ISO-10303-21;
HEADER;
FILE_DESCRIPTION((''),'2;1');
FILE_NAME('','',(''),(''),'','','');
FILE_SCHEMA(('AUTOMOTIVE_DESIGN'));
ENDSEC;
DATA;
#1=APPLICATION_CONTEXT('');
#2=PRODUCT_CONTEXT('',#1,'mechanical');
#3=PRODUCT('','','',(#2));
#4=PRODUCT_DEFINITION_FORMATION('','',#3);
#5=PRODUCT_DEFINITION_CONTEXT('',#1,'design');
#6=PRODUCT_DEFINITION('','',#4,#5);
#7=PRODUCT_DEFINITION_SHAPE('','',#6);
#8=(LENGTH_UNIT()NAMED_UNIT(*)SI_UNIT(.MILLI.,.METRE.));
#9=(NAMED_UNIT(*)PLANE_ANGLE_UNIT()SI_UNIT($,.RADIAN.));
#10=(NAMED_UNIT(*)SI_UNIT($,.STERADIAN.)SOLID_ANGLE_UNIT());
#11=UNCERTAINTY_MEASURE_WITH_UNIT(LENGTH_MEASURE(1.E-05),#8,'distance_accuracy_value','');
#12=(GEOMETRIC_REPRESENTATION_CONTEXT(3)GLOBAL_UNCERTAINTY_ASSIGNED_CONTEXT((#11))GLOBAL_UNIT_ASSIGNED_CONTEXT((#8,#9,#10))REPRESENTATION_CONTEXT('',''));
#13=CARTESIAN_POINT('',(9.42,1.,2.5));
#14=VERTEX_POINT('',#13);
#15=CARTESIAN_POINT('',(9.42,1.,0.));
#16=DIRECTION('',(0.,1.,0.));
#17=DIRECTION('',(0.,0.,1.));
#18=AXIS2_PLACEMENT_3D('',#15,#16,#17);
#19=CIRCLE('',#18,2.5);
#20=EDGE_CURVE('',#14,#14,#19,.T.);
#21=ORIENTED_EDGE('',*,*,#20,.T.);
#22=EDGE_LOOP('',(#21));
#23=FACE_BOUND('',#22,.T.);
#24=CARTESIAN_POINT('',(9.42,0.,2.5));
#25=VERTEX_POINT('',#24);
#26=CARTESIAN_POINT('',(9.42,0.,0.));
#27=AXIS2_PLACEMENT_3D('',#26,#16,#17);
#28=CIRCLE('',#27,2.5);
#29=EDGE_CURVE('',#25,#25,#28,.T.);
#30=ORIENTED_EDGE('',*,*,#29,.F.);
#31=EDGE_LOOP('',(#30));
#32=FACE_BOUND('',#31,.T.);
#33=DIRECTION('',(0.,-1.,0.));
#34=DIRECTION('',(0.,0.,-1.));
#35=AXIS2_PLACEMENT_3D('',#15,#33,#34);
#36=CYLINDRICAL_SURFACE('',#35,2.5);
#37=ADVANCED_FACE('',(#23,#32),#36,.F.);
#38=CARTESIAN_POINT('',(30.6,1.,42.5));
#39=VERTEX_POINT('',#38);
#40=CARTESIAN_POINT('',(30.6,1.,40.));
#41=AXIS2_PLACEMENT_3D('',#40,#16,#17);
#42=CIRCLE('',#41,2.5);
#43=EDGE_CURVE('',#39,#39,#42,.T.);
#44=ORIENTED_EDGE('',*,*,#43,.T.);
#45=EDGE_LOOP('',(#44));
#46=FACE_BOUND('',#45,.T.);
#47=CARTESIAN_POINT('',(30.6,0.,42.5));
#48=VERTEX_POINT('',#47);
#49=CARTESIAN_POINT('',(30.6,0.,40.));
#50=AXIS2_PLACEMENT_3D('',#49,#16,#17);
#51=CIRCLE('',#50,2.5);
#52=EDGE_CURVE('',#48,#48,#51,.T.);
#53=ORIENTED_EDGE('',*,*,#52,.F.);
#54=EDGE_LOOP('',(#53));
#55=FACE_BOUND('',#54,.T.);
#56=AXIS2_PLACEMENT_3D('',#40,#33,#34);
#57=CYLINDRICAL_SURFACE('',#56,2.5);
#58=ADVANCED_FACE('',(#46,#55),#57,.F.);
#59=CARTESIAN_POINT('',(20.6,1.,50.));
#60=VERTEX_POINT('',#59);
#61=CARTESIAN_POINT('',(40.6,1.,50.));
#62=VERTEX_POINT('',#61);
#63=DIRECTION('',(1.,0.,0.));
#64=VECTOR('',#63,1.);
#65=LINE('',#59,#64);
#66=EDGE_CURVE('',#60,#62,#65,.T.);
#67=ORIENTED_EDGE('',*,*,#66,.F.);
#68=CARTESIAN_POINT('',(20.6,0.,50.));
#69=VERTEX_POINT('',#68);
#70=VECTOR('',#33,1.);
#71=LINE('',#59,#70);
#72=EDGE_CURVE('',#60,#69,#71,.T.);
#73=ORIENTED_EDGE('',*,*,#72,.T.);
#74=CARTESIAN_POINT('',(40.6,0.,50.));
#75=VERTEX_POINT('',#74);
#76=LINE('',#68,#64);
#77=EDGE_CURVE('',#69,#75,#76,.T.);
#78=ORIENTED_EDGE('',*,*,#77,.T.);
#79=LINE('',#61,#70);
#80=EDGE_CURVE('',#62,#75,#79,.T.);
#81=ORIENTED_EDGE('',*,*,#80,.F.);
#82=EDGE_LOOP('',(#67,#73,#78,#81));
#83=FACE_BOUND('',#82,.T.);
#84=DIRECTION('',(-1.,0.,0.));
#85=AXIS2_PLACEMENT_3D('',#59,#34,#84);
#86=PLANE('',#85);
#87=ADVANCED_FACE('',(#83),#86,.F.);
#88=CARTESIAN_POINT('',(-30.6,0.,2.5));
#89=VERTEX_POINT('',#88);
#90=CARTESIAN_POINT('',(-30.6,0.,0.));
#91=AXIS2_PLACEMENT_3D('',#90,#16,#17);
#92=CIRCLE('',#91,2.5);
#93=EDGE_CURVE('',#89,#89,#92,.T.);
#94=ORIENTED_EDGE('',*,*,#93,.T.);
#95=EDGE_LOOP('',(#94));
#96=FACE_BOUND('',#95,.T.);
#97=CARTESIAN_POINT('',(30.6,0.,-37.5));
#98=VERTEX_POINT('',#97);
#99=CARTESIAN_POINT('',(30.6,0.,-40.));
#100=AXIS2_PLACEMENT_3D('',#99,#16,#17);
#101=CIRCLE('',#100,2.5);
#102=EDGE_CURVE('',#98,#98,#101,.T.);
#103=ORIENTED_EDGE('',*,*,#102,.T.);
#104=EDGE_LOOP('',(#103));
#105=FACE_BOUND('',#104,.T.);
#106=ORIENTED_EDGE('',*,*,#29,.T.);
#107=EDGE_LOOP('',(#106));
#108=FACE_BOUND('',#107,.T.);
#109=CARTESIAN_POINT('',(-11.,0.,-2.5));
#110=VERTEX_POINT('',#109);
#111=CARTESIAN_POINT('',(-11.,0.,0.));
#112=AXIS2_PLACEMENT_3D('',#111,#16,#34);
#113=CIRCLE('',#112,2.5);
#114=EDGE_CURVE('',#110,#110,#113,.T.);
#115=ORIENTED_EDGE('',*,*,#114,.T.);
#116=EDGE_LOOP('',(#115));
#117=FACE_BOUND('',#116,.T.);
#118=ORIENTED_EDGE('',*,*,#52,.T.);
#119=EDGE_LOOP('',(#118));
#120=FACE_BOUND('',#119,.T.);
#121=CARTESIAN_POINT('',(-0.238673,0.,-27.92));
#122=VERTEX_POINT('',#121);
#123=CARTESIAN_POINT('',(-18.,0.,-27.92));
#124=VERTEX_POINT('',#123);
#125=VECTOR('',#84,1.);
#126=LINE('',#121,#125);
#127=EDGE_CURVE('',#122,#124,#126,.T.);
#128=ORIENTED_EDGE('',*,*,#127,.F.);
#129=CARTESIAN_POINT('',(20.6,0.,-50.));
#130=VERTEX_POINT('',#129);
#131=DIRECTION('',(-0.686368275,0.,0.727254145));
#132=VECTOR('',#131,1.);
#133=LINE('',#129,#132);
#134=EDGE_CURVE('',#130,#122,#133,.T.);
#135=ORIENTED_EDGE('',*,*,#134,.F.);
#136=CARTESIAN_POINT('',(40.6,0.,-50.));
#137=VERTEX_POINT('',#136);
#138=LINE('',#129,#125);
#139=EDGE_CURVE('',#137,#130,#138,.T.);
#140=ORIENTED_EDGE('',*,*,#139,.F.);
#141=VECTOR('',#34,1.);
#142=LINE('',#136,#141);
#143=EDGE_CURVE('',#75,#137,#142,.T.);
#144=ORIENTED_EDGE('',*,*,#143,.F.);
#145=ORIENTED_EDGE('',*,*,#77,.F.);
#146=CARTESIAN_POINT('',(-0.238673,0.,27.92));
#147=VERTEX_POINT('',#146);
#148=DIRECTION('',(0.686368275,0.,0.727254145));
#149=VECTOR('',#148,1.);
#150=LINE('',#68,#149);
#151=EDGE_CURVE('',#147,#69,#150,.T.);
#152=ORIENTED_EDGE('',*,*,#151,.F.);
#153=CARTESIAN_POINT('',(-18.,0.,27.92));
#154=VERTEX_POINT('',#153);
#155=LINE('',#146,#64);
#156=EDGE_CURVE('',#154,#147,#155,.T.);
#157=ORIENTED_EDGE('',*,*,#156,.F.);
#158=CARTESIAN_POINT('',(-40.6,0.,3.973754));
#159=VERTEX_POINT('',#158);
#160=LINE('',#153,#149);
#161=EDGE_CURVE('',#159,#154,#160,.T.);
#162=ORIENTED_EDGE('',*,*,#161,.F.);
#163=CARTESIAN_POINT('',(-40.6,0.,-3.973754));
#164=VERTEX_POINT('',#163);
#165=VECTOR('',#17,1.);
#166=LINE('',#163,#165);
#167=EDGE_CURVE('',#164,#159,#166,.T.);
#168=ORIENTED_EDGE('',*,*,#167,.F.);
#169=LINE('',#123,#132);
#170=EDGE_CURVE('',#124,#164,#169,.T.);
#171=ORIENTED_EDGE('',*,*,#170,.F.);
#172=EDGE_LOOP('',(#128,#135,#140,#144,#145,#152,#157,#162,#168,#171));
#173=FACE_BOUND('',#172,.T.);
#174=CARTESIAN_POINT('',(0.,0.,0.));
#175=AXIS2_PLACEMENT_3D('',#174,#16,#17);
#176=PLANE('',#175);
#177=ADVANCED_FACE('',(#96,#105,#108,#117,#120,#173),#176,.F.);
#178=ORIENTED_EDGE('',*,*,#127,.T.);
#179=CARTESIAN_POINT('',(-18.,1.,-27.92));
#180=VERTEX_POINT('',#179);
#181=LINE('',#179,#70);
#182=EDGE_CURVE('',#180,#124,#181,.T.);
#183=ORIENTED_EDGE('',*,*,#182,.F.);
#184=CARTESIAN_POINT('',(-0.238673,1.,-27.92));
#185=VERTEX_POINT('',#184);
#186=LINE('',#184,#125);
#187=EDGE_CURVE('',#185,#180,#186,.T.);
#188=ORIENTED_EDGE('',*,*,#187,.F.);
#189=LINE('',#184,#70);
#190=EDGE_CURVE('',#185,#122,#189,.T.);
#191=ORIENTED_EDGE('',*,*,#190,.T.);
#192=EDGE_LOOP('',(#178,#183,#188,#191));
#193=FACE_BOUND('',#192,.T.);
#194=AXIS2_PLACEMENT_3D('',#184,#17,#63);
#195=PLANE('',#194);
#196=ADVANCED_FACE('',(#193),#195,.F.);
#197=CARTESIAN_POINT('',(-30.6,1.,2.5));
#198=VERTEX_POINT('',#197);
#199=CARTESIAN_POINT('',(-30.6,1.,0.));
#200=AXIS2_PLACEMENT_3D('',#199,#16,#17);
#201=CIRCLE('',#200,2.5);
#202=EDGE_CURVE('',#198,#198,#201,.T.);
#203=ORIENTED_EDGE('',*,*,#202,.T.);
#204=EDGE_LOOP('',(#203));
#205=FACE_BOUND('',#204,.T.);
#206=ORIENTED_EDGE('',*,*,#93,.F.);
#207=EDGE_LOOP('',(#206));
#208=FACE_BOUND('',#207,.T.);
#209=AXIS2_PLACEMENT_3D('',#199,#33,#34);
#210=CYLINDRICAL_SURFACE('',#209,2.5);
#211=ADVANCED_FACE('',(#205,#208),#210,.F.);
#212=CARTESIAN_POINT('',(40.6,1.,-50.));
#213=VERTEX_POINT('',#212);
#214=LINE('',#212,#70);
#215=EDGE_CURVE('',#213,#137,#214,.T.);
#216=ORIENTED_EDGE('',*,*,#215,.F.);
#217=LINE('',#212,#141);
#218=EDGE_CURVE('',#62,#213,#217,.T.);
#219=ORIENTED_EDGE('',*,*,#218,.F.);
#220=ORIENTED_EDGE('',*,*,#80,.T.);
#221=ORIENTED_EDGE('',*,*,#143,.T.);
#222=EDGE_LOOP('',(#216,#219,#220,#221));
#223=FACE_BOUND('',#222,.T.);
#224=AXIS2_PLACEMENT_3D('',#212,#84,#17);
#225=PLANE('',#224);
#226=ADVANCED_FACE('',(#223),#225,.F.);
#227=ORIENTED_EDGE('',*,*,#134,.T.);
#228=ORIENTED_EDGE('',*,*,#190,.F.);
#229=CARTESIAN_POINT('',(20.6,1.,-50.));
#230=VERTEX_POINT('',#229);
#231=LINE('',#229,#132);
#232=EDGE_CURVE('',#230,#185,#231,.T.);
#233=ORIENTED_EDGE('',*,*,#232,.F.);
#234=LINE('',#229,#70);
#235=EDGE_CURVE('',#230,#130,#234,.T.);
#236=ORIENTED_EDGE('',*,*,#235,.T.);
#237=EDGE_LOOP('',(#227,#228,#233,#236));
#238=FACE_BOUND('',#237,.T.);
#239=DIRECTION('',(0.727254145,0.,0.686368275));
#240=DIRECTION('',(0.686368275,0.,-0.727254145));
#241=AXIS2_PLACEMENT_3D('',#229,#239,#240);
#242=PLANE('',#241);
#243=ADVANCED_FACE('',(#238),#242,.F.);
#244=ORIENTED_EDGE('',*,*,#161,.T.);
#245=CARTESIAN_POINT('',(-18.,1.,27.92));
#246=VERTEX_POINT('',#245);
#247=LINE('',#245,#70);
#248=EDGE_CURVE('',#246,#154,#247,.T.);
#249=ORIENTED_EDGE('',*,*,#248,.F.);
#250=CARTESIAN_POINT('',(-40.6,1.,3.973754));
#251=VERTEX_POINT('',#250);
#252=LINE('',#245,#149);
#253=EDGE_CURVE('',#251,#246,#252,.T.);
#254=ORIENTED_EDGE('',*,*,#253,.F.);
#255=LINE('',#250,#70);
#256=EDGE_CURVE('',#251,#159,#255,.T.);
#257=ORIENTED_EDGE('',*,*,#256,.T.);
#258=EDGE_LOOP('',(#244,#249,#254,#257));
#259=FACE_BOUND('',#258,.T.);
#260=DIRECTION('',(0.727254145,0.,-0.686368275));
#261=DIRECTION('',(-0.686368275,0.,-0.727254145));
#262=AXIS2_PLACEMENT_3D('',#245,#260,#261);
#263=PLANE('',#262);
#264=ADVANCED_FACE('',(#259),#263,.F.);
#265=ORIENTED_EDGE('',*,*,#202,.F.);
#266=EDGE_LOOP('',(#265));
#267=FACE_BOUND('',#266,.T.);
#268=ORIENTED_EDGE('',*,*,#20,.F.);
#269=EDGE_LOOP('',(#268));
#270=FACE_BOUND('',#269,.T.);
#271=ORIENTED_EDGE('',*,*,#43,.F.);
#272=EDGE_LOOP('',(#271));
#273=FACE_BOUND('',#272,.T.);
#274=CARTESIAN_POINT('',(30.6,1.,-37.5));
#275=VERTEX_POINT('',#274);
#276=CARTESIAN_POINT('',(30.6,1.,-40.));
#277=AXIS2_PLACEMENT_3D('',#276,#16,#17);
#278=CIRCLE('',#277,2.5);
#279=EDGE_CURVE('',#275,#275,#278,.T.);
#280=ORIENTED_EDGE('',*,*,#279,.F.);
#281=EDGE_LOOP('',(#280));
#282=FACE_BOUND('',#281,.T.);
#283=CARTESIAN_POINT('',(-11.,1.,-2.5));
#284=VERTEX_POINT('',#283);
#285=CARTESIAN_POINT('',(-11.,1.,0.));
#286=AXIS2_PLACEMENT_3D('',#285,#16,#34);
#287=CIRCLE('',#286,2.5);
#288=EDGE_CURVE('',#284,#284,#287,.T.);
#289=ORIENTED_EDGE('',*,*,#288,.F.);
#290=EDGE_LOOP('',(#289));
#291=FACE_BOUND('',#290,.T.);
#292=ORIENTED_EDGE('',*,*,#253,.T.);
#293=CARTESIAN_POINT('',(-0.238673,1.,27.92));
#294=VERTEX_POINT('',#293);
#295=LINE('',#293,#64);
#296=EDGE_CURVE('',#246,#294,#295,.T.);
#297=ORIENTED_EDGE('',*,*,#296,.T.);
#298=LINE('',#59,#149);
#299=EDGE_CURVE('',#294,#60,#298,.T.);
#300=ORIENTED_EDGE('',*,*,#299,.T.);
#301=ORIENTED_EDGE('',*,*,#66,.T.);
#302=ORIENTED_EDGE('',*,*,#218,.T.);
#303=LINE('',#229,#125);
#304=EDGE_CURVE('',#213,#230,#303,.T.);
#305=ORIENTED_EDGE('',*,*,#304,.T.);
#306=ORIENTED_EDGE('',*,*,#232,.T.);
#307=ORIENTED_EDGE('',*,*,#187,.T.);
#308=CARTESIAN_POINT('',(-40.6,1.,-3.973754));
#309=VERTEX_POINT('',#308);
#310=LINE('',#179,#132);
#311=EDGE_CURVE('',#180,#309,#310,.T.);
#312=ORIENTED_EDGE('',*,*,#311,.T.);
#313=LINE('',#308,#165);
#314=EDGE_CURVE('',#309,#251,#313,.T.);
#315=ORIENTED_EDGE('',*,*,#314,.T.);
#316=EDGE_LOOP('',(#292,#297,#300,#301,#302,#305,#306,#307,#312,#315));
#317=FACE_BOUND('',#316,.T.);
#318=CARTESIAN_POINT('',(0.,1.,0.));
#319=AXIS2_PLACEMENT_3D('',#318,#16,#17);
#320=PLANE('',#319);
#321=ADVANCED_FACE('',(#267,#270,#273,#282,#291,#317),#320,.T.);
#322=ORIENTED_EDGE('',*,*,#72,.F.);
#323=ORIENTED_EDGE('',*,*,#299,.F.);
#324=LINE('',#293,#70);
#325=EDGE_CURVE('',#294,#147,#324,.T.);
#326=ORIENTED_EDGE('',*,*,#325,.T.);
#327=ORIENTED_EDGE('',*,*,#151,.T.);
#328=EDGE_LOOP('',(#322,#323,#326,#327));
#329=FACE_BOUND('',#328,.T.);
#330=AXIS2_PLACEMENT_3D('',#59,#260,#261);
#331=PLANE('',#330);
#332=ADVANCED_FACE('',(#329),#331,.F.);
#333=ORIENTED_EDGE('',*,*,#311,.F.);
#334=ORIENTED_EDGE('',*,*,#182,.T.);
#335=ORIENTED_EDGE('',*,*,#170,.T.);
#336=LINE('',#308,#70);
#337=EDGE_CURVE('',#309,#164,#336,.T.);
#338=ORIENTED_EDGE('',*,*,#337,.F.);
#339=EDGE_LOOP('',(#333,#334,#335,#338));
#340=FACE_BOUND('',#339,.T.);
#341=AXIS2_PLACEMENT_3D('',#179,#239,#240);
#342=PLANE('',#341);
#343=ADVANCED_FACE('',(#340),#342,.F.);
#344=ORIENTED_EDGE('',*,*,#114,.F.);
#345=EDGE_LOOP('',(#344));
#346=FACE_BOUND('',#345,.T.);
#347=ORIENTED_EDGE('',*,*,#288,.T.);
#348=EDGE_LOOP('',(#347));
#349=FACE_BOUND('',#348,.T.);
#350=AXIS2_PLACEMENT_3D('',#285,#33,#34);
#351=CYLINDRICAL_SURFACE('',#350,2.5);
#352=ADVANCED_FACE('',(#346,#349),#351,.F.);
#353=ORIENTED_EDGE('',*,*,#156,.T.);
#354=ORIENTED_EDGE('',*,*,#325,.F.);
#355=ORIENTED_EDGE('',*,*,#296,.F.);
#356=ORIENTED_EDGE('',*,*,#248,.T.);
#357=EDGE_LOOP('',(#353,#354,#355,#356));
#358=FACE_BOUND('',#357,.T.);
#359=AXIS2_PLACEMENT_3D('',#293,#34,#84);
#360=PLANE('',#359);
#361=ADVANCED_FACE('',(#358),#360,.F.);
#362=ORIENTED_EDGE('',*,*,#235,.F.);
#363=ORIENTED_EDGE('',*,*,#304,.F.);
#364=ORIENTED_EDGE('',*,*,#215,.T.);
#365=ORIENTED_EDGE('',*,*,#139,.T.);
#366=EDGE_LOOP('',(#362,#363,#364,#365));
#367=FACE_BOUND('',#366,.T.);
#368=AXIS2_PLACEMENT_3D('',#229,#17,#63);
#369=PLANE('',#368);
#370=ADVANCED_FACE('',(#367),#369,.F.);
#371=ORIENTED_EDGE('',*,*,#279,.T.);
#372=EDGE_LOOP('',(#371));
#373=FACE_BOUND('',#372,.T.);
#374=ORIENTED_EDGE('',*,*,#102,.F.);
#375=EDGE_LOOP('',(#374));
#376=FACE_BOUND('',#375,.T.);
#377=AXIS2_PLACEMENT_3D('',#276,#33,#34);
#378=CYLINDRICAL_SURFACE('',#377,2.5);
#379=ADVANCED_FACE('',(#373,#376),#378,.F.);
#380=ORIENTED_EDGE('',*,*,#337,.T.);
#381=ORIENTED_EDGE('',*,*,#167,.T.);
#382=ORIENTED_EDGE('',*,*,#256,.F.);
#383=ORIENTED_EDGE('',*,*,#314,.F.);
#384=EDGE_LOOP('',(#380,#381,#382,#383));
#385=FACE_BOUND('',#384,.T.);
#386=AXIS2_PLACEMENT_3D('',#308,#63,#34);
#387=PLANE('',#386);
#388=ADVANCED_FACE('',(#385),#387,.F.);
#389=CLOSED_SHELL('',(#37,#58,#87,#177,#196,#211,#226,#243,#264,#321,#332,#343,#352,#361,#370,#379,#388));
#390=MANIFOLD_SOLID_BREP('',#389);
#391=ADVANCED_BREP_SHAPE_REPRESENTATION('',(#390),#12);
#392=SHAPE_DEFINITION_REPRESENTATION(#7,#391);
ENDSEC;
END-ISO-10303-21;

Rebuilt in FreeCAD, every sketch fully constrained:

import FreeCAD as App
import Part
import Sketcher


def add_polygon(sketch, points):
    """Adds a closed chain of lines whose ends are joined by coincident constraints."""
    first, n = sketch.GeometryCount, len(points)
    for a, b in zip(points, points[1:] + points[:1]):
        sketch.addGeometry(Part.LineSegment(App.Vector(*a, 0), App.Vector(*b, 0)), False)
    for i in range(n):
        sketch.addConstraint(Sketcher.Constraint("Coincident", first + i, 2, first + (i + 1) % n, 1))

doc = App.newDocument("Part")
body = doc.addObject("PartDesign::Body", "Body")

# Sketch on XZ plane
sketch1 = body.newObject("Sketcher::SketchObject", "Sketch")
sketch1.AttachmentSupport = (doc.getObject("XZ_Plane"), [""])
sketch1.MapMode = "FlatFace"
add_polygon(sketch1, [(40.6, -50), (20.6, -50), (-0.2, -27.9), (-18, -27.9), (-40.6, -4), (-40.6, 4), (-18, 27.9), (-0.2, 27.9), (20.6, 50), (40.6, 50)])  # lines 0-9
sketch1.addGeometry(Part.Circle(App.Vector(30.6, 40, 0), App.Vector(0, 0, 1), 2.5), False)  # 10
sketch1.addGeometry(Part.Circle(App.Vector(9.4, 0, 0), App.Vector(0, 0, 1), 2.5), False)  # 11
sketch1.addGeometry(Part.Circle(App.Vector(30.6, -40, 0), App.Vector(0, 0, 1), 2.5), False)  # 12
sketch1.addGeometry(Part.Circle(App.Vector(-11, 0, 0), App.Vector(0, 0, 1), 2.5), False)  # 13
sketch1.addGeometry(Part.Circle(App.Vector(-30.6, 0, 0), App.Vector(0, 0, 1), 2.5), False)  # 14
sketch1.addConstraint(Sketcher.Constraint("Horizontal", 0))
sketch1.addConstraint(Sketcher.Constraint("Horizontal", 2))
sketch1.addConstraint(Sketcher.Constraint("Vertical", 4))
sketch1.addConstraint(Sketcher.Constraint("Horizontal", 6))
sketch1.addConstraint(Sketcher.Constraint("Horizontal", 8))
sketch1.addConstraint(Sketcher.Constraint("Vertical", 9))
sketch1.addConstraint(Sketcher.Constraint("Equal", 10, 11))
sketch1.addConstraint(Sketcher.Constraint("Equal", 11, 12))
sketch1.addConstraint(Sketcher.Constraint("Equal", 12, 13))
sketch1.addConstraint(Sketcher.Constraint("Equal", 13, 14))
sketch1.addConstraint(Sketcher.Constraint("Symmetric", 10, 3, 12, 3, -1))
sketch1.addConstraint(Sketcher.Constraint("Symmetric", 2, 2, 5, 2, -1))
sketch1.addConstraint(Sketcher.Constraint("Symmetric", 0, 2, 7, 2, -1))
sketch1.addConstraint(Sketcher.Constraint("PointOnObject", 11, 3, -1))
sketch1.addConstraint(Sketcher.Constraint("PointOnObject", 13, 3, -1))
sketch1.addConstraint(Sketcher.Constraint("PointOnObject", 14, 3, -1))
sketch1.addConstraint(Sketcher.Constraint("Parallel", 1, 3))
sketch1.addConstraint(Sketcher.Constraint("Parallel", 5, 7))
sketch1.addConstraint(Sketcher.Constraint("Vertical", 1, 2, 6, 2))
sketch1.addConstraint(Sketcher.Constraint("Diameter", 10, 5.0))
sketch1.addConstraint(Sketcher.Constraint("DistanceX", 0, 2, 0, 1, 20.0))
sketch1.addConstraint(Sketcher.Constraint("DistanceY", 9, 2, 9, 1, 100.0))
sketch1.addConstraint(Sketcher.Constraint("DistanceY", -1, 1, 10, 3, 40.0))
sketch1.addConstraint(Sketcher.Constraint("DistanceX", 13, 3, -1, 1, 11.0))
sketch1.addConstraint(Sketcher.Constraint("DistanceX", 2, 2, -1, 1, 18.0))
sketch1.addConstraint(Sketcher.Constraint("DistanceX", 0, 2, 12, 3, 10.0))
sketch1.addConstraint(Sketcher.Constraint("DistanceX", 3, 2, 14, 3, 10.0))
sketch1.addConstraint(Sketcher.Constraint("DistanceX", -1, 1, 10, 3, 30.6))
sketch1.addConstraint(Sketcher.Constraint("DistanceX", 14, 3, -1, 1, 30.6))
sketch1.addConstraint(Sketcher.Constraint("DistanceX", -1, 1, 11, 3, 9.42))
sketch1.addConstraint(Sketcher.Constraint("DistanceY", 1, 2, -1, 1, 27.92))
sketch1.addConstraint(Sketcher.Constraint("Distance", 3, 32.92693))
pad1 = body.newObject("PartDesign::Pad", "Pad")
pad1.Profile = sketch1
pad1.Length = 1
pad1.Reversed = True

doc.recompute()
